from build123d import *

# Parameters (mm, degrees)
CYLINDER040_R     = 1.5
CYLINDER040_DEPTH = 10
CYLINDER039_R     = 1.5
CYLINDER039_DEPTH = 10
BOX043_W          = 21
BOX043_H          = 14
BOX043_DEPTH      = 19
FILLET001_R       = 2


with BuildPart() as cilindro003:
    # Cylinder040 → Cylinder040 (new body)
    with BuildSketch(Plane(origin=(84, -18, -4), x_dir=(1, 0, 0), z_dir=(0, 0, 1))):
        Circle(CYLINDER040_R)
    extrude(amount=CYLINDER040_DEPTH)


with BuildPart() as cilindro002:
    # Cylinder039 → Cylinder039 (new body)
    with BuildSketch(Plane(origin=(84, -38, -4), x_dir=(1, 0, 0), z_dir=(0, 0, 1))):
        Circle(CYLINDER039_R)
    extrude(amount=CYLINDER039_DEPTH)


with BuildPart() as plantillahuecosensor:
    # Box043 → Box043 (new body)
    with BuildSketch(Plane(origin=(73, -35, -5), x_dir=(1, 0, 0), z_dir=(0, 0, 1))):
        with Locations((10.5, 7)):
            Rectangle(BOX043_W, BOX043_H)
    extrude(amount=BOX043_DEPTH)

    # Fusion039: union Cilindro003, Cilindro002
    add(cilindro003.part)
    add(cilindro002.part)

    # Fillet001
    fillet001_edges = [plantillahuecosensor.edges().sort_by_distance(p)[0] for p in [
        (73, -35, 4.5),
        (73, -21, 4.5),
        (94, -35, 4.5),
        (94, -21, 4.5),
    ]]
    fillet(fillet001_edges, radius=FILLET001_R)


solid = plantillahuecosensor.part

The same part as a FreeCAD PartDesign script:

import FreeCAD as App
import Part
import Sketcher
Q = App.Units.Quantity


def edges_at(feature, points):
    """Names of the edges that pass closest to the given points."""
    edges = feature.Shape.Edges
    near = lambda p: min(range(len(edges)), key=lambda i: edges[i].distToShape(Part.Vertex(*p))[0])
    return sorted({f"Edge{near(p) + 1}" for p in points})


def add_polygon(sketch, points):
    """Adds a closed chain of lines whose ends are joined by coincident constraints."""
    first, n = sketch.GeometryCount, len(points)
    for a, b in zip(points, points[1:] + points[:1]):
        sketch.addGeometry(Part.LineSegment(App.Vector(*a, 0), App.Vector(*b, 0)), False)
    for i in range(n):
        sketch.addConstraint(Sketcher.Constraint("Coincident", first + i, 2, first + (i + 1) % n, 1))

doc = App.newDocument("Part")
params = doc.addObject("Spreadsheet::Sheet", "Params")
for row, (alias, value) in enumerate([
    ("sketch1_diameter", "3 mm"),
    ("pad1_length", "10 mm"),
    ("sketch2_diameter", "3 mm"),
    ("pad2_length", "10 mm"),
    ("sketch3_width", "21 mm"),
    ("sketch3_height", "14 mm"),
    ("pad3_length", "19 mm"),
    ("fillet_radius", "2 mm"),
], start=1):
    params.set(f"A{row}", alias)
    params.set(f"B{row}", "=" + value)
    params.setAlias(f"B{row}", alias)

body = doc.addObject("PartDesign::Body", "Body")

sketch1 = doc.addObject("Sketcher::SketchObject", "Sketch")
body.addObject(sketch1)
sketch1.AttachmentSupport = (doc.XY_Plane, [""])
sketch1.MapMode = "FlatFace"
sketch1.AttachmentOffset = App.Placement(App.Vector(0, 0, -4), App.Rotation())
sketch1.addGeometry(Part.Circle(App.Vector(84, -18, 0), App.Vector(0, 0, 1), 1.5), False)
sketch1.addConstraint([
    Sketcher.Constraint("Diameter", 0, Q("3 mm")),
    Sketcher.Constraint("DistanceX", -1, 1, 0, 3, Q("84 mm")),
    Sketcher.Constraint("DistanceY", 0, 3, -1, 1, Q("18 mm")),
])
sketch1.setExpression("Constraints[0]", "Params.sketch1_diameter")
pad1 = doc.addObject("PartDesign::Pad", "Pad")
body.addObject(pad1)
pad1.Profile = sketch1
pad1.setExpression("Length", "Params.pad1_length")
body2 = doc.addObject("PartDesign::Body", "Body001")

sketch2 = doc.addObject("Sketcher::SketchObject", "Sketch001")
body2.addObject(sketch2)
sketch2.AttachmentSupport = (doc.getObject("XY_Plane001"), [""])
sketch2.MapMode = "FlatFace"
sketch2.AttachmentOffset = App.Placement(App.Vector(0, 0, -4), App.Rotation())
sketch2.addGeometry(Part.Circle(App.Vector(84, -38, 0), App.Vector(0, 0, 1), 1.5), False)
sketch2.addConstraint([
    Sketcher.Constraint("Diameter", 0, Q("3 mm")),
    Sketcher.Constraint("DistanceX", -1, 1, 0, 3, Q("84 mm")),
    Sketcher.Constraint("DistanceY", 0, 3, -1, 1, Q("38 mm")),
])
sketch2.setExpression("Constraints[0]", "Params.sketch2_diameter")
pad2 = doc.addObject("PartDesign::Pad", "Pad001")
body2.addObject(pad2)
pad2.Profile = sketch2
pad2.setExpression("Length", "Params.pad2_length")
body3 = doc.addObject("PartDesign::Body", "Body002")
body3.AllowCompound = True

sketch3 = doc.addObject("Sketcher::SketchObject", "Sketch002")
body3.addObject(sketch3)
sketch3.AttachmentSupport = (doc.getObject("XY_Plane002"), [""])
sketch3.MapMode = "FlatFace"
sketch3.AttachmentOffset = App.Placement(App.Vector(0, 0, -5), App.Rotation())
add_polygon(sketch3, [(73, -21), (73, -35), (94, -35), (94, -21)])
sketch3.addConstraint([
    Sketcher.Constraint("Vertical", 0),
    Sketcher.Constraint("Horizontal", 1),
    Sketcher.Constraint("Vertical", 2),
    Sketcher.Constraint("Horizontal", 3),
    Sketcher.Constraint("DistanceX", 1, 1, 1, 2, Q("21 mm")),
    Sketcher.Constraint("DistanceY", 0, 2, 0, 1, Q("14 mm")),
    Sketcher.Constraint("DistanceX", -1, 1, 0, 2, Q("73 mm")),
    Sketcher.Constraint("DistanceY", 0, 2, -1, 1, Q("35 mm")),
])
sketch3.setExpression("Constraints[8]", "Params.sketch3_width")
sketch3.setExpression("Constraints[9]", "Params.sketch3_height")
pad3 = doc.addObject("PartDesign::Pad", "Pad002")
body3.addObject(pad3)
pad3.Profile = sketch3
pad3.setExpression("Length", "Params.pad3_length")
doc.recompute()

boolean = doc.addObject("PartDesign::Boolean", "Boolean")
body3.addObject(boolean)
boolean.Type = "Fuse"
boolean.addObjects([body])
doc.recompute()

boolean2 = doc.addObject("PartDesign::Boolean", "Boolean001")
body3.addObject(boolean2)
boolean2.Type = "Fuse"
boolean2.addObjects([body2])
doc.recompute()

fillet = doc.addObject("PartDesign::Fillet", "Fillet")
body3.addObject(fillet)
fillet.Base = (boolean2, edges_at(boolean2, [
    (73, -35, 4.5),
    (73, -21, 4.5),
    (94, -35, 4.5),
    (94, -21, 4.5),
]))
fillet.setExpression("Radius", "Params.fillet_radius")

doc.recompute()
